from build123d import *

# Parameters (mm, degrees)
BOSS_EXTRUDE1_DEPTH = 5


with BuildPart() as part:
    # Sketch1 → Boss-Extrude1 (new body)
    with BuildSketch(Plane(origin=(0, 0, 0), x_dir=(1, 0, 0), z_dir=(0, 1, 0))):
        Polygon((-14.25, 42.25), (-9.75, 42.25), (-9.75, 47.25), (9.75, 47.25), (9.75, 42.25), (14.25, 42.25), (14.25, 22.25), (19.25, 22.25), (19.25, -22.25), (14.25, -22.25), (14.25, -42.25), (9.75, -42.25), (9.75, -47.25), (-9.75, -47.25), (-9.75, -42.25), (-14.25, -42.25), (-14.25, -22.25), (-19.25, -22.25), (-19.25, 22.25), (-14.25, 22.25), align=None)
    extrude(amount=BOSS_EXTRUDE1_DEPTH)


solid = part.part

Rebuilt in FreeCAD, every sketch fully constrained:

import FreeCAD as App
import Part
import Sketcher

doc = App.newDocument("Part")
body = doc.addObject("PartDesign::Body", "Body")

sketch1 = body.newObject("Sketcher::SketchObject", "Sketch")
sketch1.AttachmentSupport = (doc.getObject("XZ_Plane"), [""])
sketch1.MapMode = "FlatFace"
sketch1.addGeometry([
    Part.LineSegment(App.Vector(-9.75, -42.25, 0), App.Vector(-14.25, -42.25, 0)),
    Part.LineSegment(App.Vector(-14.25, -42.25, 0), App.Vector(-14.25, -22.25, 0)),
    Part.LineSegment(App.Vector(-14.25, -22.25, 0), App.Vector(-19.25, -22.25, 0)),
    Part.LineSegment(App.Vector(-19.25, -22.25, 0), App.Vector(-19.25, 22.25, 0)),
    Part.LineSegment(App.Vector(-19.25, 22.25, 0), App.Vector(-14.25, 22.25, 0)),
    Part.LineSegment(App.Vector(-14.25, 22.25, 0), App.Vector(-14.25, 42.25, 0)),
    Part.LineSegment(App.Vector(-14.25, 42.25, 0), App.Vector(-9.75, 42.25, 0)),
    Part.LineSegment(App.Vector(-9.75, 42.25, 0), App.Vector(-9.75, 47.25, 0)),
    Part.LineSegment(App.Vector(-9.75, 47.25, 0), App.Vector(9.75, 47.25, 0)),
    Part.LineSegment(App.Vector(9.75, 47.25, 0), App.Vector(9.75, 42.25, 0)),
    Part.LineSegment(App.Vector(9.75, 42.25, 0), App.Vector(14.25, 42.25, 0)),
    Part.LineSegment(App.Vector(14.25, 42.25, 0), App.Vector(14.25, 22.25, 0)),
    Part.LineSegment(App.Vector(14.25, 22.25, 0), App.Vector(19.25, 22.25, 0)),
    Part.LineSegment(App.Vector(19.25, 22.25, 0), App.Vector(19.25, -22.25, 0)),
    Part.LineSegment(App.Vector(19.25, -22.25, 0), App.Vector(14.25, -22.25, 0)),
    Part.LineSegment(App.Vector(14.25, -22.25, 0), App.Vector(14.25, -42.25, 0)),
    Part.LineSegment(App.Vector(14.25, -42.25, 0), App.Vector(9.75, -42.25, 0)),
    Part.LineSegment(App.Vector(9.75, -42.25, 0), App.Vector(9.75, -47.25, 0)),
    Part.LineSegment(App.Vector(9.75, -47.25, 0), App.Vector(-9.75, -47.25, 0)),
    Part.LineSegment(App.Vector(-9.75, -47.25, 0), App.Vector(-9.75, -42.25, 0)),
], False)
sketch1.addConstraint([
    Sketcher.Constraint("Coincident", 0, 2, 1, 1),
    Sketcher.Constraint("Coincident", 1, 2, 2, 1),
    Sketcher.Constraint("Coincident", 2, 2, 3, 1),
    Sketcher.Constraint("Coincident", 3, 2, 4, 1),
    Sketcher.Constraint("Coincident", 4, 2, 5, 1),
    Sketcher.Constraint("Coincident", 5, 2, 6, 1),
    Sketcher.Constraint("Coincident", 6, 2, 7, 1),
    Sketcher.Constraint("Coincident", 7, 2, 8, 1),
    Sketcher.Constraint("Coincident", 8, 2, 9, 1),
    Sketcher.Constraint("Coincident", 9, 2, 10, 1),
    Sketcher.Constraint("Coincident", 10, 2, 11, 1),
    Sketcher.Constraint("Coincident", 11, 2, 12, 1),
    Sketcher.Constraint("Coincident", 12, 2, 13, 1),
    Sketcher.Constraint("Coincident", 13, 2, 14, 1),
    Sketcher.Constraint("Coincident", 14, 2, 15, 1),
    Sketcher.Constraint("Coincident", 15, 2, 16, 1),
    Sketcher.Constraint("Coincident", 16, 2, 17, 1),
    Sketcher.Constraint("Coincident", 17, 2, 18, 1),
    Sketcher.Constraint("Coincident", 18, 2, 19, 1),
    Sketcher.Constraint("Coincident", 19, 2, 0, 1),
    Sketcher.Constraint("Horizontal", 0),
    Sketcher.Constraint("Vertical", 1),
    Sketcher.Constraint("Horizontal", 2),
    Sketcher.Constraint("Vertical", 3),
    Sketcher.Constraint("Horizontal", 4),
    Sketcher.Constraint("Vertical", 5),
    Sketcher.Constraint("Horizontal", 6),
    Sketcher.Constraint("Vertical", 7),
    Sketcher.Constraint("Horizontal", 8),
    Sketcher.Constraint("Vertical", 9),
    Sketcher.Constraint("Horizontal", 10),
    Sketcher.Constraint("Vertical", 11),
    Sketcher.Constraint("Horizontal", 12),
    Sketcher.Constraint("Vertical", 13),
    Sketcher.Constraint("Horizontal", 14),
    Sketcher.Constraint("Vertical", 15),
    Sketcher.Constraint("Horizontal", 16),
    Sketcher.Constraint("Vertical", 17),
    Sketcher.Constraint("Horizontal", 18),
    Sketcher.Constraint("Vertical", 19),
    Sketcher.Constraint("Symmetric", 0, 2, 10, 2, -1, 1),
    Sketcher.Constraint("Symmetric", 2, 2, 12, 2, -1, 1),
    Sketcher.Constraint("Symmetric", 4, 2, 14, 2, -1, 1),
    Sketcher.Constraint("Symmetric", 6, 2, 16, 2, -1, 1),
    Sketcher.Constraint("Symmetric", 8, 2, 18, 2, -1, 1),
    Sketcher.Constraint("Symmetric", 6, 2, 9, 2, -2),
    Sketcher.Constraint("Symmetric", 4, 2, 11, 2, -2),
    Sketcher.Constraint("Equal", 14, 7),
    Sketcher.Constraint("DistanceX", 2, 2, 2, 1, 5.0),
    Sketcher.Constraint("DistanceY", 1, 1, 1, 2, 20.0),
    Sketcher.Constraint("DistanceX", 0, 2, 0, 1, 4.5),
    Sketcher.Constraint("DistanceX", 8, 1, 8, 2, 19.5),
    Sketcher.Constraint("DistanceY", 3, 1, 3, 2, 44.5),
])
pad1 = body.newObject("PartDesign::Pad", "Pad")
pad1.Profile = sketch1
pad1.Length = 5
pad1.Reversed = True

doc.recompute()
